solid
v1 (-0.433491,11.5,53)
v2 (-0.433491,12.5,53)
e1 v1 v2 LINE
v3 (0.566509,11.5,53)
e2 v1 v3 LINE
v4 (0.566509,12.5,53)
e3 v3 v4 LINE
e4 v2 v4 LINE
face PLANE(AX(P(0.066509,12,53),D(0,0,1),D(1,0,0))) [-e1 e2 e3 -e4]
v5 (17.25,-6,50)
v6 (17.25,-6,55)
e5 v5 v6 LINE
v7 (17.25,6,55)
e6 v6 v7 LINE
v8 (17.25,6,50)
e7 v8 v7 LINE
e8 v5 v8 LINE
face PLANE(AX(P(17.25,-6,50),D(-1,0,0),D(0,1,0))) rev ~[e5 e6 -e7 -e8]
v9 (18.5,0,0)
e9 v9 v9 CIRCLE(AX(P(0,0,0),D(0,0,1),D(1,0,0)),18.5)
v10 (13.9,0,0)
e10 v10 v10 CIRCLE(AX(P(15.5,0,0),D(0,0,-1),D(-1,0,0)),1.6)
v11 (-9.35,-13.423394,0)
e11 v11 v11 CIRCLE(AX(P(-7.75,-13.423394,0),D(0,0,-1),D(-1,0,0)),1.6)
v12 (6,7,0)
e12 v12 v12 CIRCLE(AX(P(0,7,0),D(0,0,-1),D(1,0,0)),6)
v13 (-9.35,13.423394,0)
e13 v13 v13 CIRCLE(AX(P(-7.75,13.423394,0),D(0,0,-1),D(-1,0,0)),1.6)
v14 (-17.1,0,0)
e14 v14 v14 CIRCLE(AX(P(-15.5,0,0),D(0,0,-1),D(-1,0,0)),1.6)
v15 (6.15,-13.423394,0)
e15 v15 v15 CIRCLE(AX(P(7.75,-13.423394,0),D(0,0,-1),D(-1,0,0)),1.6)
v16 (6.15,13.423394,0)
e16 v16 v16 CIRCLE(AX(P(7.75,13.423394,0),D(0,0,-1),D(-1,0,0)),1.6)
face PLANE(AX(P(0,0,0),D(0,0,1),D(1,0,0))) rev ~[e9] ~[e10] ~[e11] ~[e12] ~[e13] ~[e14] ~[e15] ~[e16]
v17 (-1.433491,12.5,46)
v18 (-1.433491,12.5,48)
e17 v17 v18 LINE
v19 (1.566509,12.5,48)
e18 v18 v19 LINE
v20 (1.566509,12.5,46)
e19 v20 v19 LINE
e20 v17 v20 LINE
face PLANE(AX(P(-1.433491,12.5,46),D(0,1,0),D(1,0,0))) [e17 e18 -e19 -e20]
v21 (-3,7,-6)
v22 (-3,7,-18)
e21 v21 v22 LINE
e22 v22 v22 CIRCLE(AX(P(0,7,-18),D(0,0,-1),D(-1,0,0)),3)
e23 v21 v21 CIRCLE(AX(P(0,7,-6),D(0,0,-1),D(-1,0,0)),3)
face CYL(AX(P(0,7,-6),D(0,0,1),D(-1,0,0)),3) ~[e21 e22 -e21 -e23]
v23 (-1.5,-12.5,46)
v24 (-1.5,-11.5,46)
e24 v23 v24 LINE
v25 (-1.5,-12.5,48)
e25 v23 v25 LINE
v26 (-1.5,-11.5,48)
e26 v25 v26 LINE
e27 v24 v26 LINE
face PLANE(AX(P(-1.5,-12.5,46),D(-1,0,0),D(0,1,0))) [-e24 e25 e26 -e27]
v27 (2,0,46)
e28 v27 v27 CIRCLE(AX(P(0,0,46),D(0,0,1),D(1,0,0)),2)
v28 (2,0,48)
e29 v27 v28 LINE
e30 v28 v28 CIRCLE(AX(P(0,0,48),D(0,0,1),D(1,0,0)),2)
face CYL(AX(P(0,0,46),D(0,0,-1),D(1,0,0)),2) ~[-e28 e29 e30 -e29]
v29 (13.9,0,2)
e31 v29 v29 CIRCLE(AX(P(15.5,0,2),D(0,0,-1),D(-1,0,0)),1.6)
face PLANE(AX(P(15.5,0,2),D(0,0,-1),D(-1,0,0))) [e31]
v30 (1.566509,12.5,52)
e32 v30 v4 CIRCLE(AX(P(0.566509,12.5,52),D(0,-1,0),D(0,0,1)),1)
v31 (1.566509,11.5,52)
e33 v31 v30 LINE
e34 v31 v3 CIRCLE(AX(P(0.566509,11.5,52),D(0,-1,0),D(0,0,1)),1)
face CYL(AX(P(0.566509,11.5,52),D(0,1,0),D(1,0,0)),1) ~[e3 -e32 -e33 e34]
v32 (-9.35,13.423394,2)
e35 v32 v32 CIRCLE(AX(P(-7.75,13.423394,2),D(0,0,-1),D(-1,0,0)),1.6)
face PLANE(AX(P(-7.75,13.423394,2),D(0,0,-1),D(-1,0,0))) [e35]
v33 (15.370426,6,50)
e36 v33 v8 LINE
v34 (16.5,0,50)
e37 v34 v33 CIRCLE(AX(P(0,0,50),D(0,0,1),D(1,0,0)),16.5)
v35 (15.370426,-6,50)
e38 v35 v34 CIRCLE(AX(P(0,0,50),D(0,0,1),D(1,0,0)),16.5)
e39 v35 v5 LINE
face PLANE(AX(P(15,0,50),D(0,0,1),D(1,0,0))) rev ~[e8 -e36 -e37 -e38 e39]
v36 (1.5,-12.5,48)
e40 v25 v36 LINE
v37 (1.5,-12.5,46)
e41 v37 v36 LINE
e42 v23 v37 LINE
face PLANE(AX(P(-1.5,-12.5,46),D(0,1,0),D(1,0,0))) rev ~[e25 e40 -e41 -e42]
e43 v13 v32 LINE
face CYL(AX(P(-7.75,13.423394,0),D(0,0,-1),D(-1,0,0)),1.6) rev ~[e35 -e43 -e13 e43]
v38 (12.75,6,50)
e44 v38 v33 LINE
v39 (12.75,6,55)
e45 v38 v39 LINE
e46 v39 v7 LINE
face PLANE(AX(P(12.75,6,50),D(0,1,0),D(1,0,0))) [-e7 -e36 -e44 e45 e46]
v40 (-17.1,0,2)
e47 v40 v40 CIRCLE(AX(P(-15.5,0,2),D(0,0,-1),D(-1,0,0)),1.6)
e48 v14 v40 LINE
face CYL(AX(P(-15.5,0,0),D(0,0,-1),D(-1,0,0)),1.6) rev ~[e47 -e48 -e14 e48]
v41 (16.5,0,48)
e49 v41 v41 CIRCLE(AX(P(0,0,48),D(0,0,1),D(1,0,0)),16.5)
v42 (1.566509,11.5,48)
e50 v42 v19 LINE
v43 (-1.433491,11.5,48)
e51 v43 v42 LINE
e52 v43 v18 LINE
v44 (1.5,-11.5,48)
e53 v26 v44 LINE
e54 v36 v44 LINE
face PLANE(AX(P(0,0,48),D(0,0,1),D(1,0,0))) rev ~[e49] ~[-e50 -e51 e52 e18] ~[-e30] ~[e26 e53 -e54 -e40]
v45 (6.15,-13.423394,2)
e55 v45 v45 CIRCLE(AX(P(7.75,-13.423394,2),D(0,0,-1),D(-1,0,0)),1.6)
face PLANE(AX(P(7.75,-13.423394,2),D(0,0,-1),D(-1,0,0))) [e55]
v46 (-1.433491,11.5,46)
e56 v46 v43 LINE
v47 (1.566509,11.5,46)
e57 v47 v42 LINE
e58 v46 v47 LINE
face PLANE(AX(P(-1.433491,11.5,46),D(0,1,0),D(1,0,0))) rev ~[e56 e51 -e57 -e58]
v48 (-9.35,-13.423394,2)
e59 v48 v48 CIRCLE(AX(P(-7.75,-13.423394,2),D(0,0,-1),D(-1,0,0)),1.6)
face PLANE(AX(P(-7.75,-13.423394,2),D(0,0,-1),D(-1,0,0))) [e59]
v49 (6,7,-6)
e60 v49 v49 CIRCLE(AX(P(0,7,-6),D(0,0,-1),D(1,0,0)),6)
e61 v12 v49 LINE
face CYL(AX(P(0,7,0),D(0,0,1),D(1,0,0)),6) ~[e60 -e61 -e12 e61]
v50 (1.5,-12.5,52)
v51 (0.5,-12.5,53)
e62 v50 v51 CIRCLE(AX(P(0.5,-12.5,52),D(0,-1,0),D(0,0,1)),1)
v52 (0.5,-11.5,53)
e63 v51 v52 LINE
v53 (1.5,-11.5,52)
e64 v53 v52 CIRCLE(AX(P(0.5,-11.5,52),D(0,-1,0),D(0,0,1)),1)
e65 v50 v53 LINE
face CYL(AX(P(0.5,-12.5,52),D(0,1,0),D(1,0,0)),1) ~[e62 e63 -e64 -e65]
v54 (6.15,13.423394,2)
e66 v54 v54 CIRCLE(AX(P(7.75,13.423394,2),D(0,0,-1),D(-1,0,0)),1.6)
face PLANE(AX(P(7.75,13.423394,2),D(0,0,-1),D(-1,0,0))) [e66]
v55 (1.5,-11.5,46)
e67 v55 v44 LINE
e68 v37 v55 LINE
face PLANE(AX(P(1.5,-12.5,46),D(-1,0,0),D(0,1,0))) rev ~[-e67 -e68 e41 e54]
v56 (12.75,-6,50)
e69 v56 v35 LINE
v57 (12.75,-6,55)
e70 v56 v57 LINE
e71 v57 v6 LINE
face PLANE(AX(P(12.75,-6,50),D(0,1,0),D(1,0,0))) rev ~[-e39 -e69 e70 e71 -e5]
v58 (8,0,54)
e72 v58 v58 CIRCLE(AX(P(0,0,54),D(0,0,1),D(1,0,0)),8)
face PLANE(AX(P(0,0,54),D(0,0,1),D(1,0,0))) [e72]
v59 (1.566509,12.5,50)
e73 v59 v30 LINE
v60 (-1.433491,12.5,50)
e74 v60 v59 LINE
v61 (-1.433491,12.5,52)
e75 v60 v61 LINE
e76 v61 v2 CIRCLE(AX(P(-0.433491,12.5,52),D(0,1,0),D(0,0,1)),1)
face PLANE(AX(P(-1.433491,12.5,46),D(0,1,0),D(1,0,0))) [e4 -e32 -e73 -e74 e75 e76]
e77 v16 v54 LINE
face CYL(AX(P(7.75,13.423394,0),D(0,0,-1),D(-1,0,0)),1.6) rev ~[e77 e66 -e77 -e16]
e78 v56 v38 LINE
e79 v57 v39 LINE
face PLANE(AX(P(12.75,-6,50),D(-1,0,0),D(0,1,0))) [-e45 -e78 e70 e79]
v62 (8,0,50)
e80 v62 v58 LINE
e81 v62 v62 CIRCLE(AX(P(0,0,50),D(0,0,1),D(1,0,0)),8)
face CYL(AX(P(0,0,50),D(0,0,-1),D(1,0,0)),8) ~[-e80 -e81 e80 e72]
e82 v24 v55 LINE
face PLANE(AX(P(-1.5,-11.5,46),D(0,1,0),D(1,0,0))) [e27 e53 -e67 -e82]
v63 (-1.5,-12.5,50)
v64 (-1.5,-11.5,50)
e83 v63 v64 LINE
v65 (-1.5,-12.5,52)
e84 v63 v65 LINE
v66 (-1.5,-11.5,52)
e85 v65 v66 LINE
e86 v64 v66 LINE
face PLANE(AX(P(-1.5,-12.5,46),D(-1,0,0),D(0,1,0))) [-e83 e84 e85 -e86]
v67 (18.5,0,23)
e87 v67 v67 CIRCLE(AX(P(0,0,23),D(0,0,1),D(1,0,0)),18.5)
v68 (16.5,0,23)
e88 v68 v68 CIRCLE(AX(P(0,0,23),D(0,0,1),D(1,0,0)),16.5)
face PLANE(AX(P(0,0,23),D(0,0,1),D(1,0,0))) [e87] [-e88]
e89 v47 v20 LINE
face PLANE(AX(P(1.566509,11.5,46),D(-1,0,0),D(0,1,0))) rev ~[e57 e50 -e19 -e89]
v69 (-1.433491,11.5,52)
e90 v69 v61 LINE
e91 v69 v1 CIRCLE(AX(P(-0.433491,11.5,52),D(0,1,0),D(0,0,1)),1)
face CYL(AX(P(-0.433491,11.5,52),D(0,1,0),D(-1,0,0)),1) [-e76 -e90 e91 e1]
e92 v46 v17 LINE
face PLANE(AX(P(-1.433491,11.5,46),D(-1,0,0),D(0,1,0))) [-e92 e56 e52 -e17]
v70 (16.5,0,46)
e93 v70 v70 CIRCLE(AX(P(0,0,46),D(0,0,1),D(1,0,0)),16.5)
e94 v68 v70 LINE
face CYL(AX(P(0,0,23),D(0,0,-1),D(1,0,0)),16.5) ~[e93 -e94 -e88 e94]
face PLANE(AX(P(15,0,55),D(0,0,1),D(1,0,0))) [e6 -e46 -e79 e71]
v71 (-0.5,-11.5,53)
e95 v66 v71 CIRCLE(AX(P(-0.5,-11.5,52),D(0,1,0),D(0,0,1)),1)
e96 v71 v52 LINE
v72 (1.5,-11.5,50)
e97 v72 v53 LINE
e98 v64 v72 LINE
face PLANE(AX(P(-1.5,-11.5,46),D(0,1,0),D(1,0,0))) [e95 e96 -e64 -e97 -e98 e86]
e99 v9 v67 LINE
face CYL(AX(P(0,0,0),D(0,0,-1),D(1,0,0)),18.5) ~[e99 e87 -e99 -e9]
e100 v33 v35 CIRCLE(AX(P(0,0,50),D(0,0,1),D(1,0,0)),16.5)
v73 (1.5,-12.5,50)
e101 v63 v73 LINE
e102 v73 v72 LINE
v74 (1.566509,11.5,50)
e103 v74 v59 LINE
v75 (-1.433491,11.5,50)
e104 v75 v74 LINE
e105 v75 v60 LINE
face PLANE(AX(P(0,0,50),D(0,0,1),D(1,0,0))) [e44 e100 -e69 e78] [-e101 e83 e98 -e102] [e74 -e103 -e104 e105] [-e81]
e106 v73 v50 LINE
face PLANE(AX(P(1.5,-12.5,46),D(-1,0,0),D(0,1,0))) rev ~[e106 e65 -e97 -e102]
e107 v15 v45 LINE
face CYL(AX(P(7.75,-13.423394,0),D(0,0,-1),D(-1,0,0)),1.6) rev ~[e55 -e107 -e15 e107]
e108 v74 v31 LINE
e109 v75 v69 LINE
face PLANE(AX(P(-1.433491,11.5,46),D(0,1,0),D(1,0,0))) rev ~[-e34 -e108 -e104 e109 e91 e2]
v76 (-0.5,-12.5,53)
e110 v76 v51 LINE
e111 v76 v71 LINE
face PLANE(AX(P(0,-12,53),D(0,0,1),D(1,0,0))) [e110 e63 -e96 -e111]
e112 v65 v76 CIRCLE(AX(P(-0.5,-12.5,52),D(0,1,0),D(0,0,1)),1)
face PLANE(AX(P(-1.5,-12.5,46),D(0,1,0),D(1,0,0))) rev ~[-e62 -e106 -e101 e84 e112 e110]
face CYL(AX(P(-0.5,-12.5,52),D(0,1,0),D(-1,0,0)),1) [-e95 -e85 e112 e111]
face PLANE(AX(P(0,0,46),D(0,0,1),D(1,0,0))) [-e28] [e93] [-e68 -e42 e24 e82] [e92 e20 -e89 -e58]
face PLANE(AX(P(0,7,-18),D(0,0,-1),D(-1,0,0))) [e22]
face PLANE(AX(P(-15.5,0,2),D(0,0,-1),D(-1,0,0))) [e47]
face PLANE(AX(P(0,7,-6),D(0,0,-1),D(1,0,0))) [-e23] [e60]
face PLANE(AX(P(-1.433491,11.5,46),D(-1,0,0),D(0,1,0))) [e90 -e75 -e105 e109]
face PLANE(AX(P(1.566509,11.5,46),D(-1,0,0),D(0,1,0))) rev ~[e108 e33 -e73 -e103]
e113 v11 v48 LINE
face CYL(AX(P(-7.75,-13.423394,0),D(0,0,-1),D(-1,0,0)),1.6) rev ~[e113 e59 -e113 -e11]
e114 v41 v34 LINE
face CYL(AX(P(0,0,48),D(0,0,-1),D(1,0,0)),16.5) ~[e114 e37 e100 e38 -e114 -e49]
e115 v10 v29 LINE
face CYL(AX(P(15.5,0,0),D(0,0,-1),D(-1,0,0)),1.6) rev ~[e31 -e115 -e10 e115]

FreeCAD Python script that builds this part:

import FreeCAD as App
import Part
import Sketcher

V = App.Vector


def edges_at(feature, points):
    """Names of the edges that pass closest to the given points."""
    edges = feature.Shape.Edges
    near = lambda p: min(range(len(edges)), key=lambda i: edges[i].distToShape(Part.Vertex(*p))[0])
    return sorted({f"Edge{near(p) + 1}" for p in points})


def add_polygon(sketch, points):
    """Adds a closed chain of lines whose ends are joined by coincident constraints."""
    first, n = sketch.GeometryCount, len(points)
    for a, b in zip(points, points[1:] + points[:1]):
        sketch.addGeometry(Part.LineSegment(App.Vector(*a, 0), App.Vector(*b, 0)), False)
    for i in range(n):
        sketch.addConstraint(Sketcher.Constraint("Coincident", first + i, 2, first + (i + 1) % n, 1))

doc = App.newDocument("Part")
body = doc.addObject("PartDesign::Body", "Body")

# Sketch on XY plane
sketch1 = body.newObject("Sketcher::SketchObject", "Sketch")
sketch1.AttachmentSupport = (doc.getObject("XY_Plane"), [""])
sketch1.MapMode = "FlatFace"
sketch1.addGeometry(Part.Circle(V(0, 0, 0), V(0, 0, 1), 18), False)
sketch1.addConstraint(Sketcher.Constraint("Coincident", 0, 3, -1, 1))
sketch1.addConstraint(Sketcher.Constraint("Diameter", 0, 37.0))
pad1 = body.newObject("PartDesign::Pad", "Pad")
pad1.Profile = sketch1
pad1.Length = 23

# Sketch on XY plane
sketch2 = body.newObject("Sketcher::SketchObject", "Sketch001")
sketch2.AttachmentSupport = (doc.getObject("XY_Plane"), [""])
sketch2.MapMode = "FlatFace"
sketch2.AttachmentOffset = App.Placement(V(0, 0, 23), App.Rotation())
sketch2.addGeometry(Part.Circle(V(0, 0, 0), V(0, 0, 1), 16), False)
sketch2.addConstraint(Sketcher.Constraint("Coincident", 0, 3, -1, 1))
sketch2.addConstraint(Sketcher.Constraint("Diameter", 0, 33.0))
pad2 = body.newObject("PartDesign::Pad", "Pad001")
pad2.Profile = sketch2
pad2.Length = 23

# Sketch on XY plane
sketch3 = body.newObject("Sketcher::SketchObject", "Sketch002")
sketch3.AttachmentSupport = (doc.getObject("XY_Plane"), [""])
sketch3.MapMode = "FlatFace"
sketch3.addGeometry(Part.Circle(V(0, 7, 0), V(0, 0, 1), 6), False)
sketch3.addConstraint(Sketcher.Constraint("PointOnObject", 0, 3, -2))
sketch3.addConstraint(Sketcher.Constraint("Diameter", 0, 12.0))
sketch3.addConstraint(Sketcher.Constraint("DistanceY", -1, 1, 0, 3, 7.0))
pad3 = body.newObject("PartDesign::Pad", "Pad002")
pad3.Profile = sketch3
pad3.Length = 6
pad3.Reversed = True

# Sketch on XY plane
sketch4 = body.newObject("Sketcher::SketchObject", "Sketch003")
sketch4.AttachmentSupport = (doc.getObject("XY_Plane"), [""])
sketch4.MapMode = "FlatFace"
sketch4.AttachmentOffset = App.Placement(V(0, 0, -6), App.Rotation())
sketch4.addGeometry(Part.Circle(V(0, 7, 0), V(0, 0, 1), 3), False)
sketch4.addConstraint(Sketcher.Constraint("PointOnObject", 0, 3, -2))
sketch4.addConstraint(Sketcher.Constraint("Diameter", 0, 6.0))
sketch4.addConstraint(Sketcher.Constraint("DistanceY", -1, 1, 0, 3, 7.0))
pad4 = body.newObject("PartDesign::Pad", "Pad003")
pad4.Profile = sketch4
pad4.Length = 12
pad4.Reversed = True

# Sketch on XY plane
sketch5 = body.newObject("Sketcher::SketchObject", "Sketch004")
sketch5.AttachmentSupport = (doc.getObject("XY_Plane"), [""])
sketch5.MapMode = "FlatFace"
sketch5.AttachmentOffset = App.Placement(V(0, 0, 46), App.Rotation())
sketch5.addGeometry(Part.Circle(V(0, 0, 0), V(0, 0, 1), 2), False)
sketch5.addConstraint(Sketcher.Constraint("Coincident", 0, 3, -1, 1))
sketch5.addConstraint(Sketcher.Constraint("Diameter", 0, 4.0))
pad5 = body.newObject("PartDesign::Pad", "Pad004")
pad5.Profile = sketch5
pad5.Length = 2

# Sketch on XY plane
sketch6 = body.newObject("Sketcher::SketchObject", "Sketch005")
sketch6.AttachmentSupport = (doc.getObject("XY_Plane"), [""])
sketch6.MapMode = "FlatFace"
sketch6.AttachmentOffset = App.Placement(V(0, 0, 46), App.Rotation())
add_polygon(sketch6, [(-1.5, -11.5), (-1.5, -12.5), (1.5, -12.5), (1.5, -11.5)])  # lines 0-3
add_polygon(sketch6, [(-1.4, 12.5), (-1.4, 11.5), (1.6, 11.5), (1.6, 12.5)])  # lines 4-7
sketch6.addConstraint(Sketcher.Constraint("Vertical", 0))
sketch6.addConstraint(Sketcher.Constraint("Horizontal", 1))
sketch6.addConstraint(Sketcher.Constraint("Vertical", 2))
sketch6.addConstraint(Sketcher.Constraint("Horizontal", 3))
sketch6.addConstraint(Sketcher.Constraint("Vertical", 4))
sketch6.addConstraint(Sketcher.Constraint("Horizontal", 5))
sketch6.addConstraint(Sketcher.Constraint("Vertical", 6))
sketch6.addConstraint(Sketcher.Constraint("Horizontal", 7))
sketch6.addConstraint(Sketcher.Constraint("Equal", 3, 5))
sketch6.addConstraint(Sketcher.Constraint("Equal", 2, 4))
sketch6.addConstraint(Sketcher.Constraint("DistanceX", 1, 1, 1, 2, 3.0))
sketch6.addConstraint(Sketcher.Constraint("DistanceY", 0, 2, 0, 1, 1.0))
sketch6.addConstraint(Sketcher.Constraint("DistanceY", 3, 2, 4, 2, 23.0))
sketch6.addConstraint(Sketcher.Constraint("DistanceX", 0, 2, -1, 1, 1.5))
sketch6.addConstraint(Sketcher.Constraint("DistanceY", 0, 2, -1, 1, 12.5))
sketch6.addConstraint(Sketcher.Constraint("DistanceX", 4, 2, -1, 1, 1.433491))
pad6 = body.newObject("PartDesign::Pad", "Pad005")
pad6.Profile = sketch6
pad6.Length = 7

# Sketch on XY plane
sketch7 = body.newObject("Sketcher::SketchObject", "Sketch006")
sketch7.AttachmentSupport = (doc.getObject("XY_Plane"), [""])
sketch7.MapMode = "FlatFace"
sketch7.AttachmentOffset = App.Placement(V(0, 0, 48), App.Rotation())
sketch7.addGeometry(Part.Circle(V(0, 0, 0), V(0, 0, 1), 16), False)
sketch7.addConstraint(Sketcher.Constraint("Coincident", 0, 3, -1, 1))
sketch7.addConstraint(Sketcher.Constraint("Diameter", 0, 33.0))
pad7 = body.newObject("PartDesign::Pad", "Pad006")
pad7.Profile = sketch7
pad7.Length = 2

# Sketch on XY plane
sketch8 = body.newObject("Sketcher::SketchObject", "Sketch007")
sketch8.AttachmentSupport = (doc.getObject("XY_Plane"), [""])
sketch8.MapMode = "FlatFace"
sketch8.AttachmentOffset = App.Placement(V(0, 0, 50), App.Rotation())
add_polygon(sketch8, [(12.8, 6), (12.8, -6), (17.2, -6), (17.2, 6)])  # lines 0-3
sketch8.addConstraint(Sketcher.Constraint("Vertical", 0))
sketch8.addConstraint(Sketcher.Constraint("Horizontal", 1))
sketch8.addConstraint(Sketcher.Constraint("Vertical", 2))
sketch8.addConstraint(Sketcher.Constraint("Horizontal", 3))
sketch8.addConstraint(Sketcher.Constraint("DistanceY", 0, 2, 0, 1, 12.0))
sketch8.addConstraint(Sketcher.Constraint("DistanceX", 1, 1, 1, 2, 4.5))
sketch8.addConstraint(Sketcher.Constraint("DistanceY", 0, 2, -1, 1, 6.0))
sketch8.addConstraint(Sketcher.Constraint("DistanceX", -1, 1, 0, 2, 12.75))
pad8 = body.newObject("PartDesign::Pad", "Pad007")
pad8.Profile = sketch8
pad8.Length = 5
doc.recompute()

fillet = body.newObject("PartDesign::Fillet", "Fillet")
fillet.Base = (pad8, edges_at(pad8, [
    (1.567, 12, 53),
    (-1.433, 12, 53),
    (1.5, -12, 53),
    (-1.5, -12, 53),
]))
fillet.Radius = 1

# Sketch on XY plane
sketch9 = body.newObject("Sketcher::SketchObject", "Sketch008")
sketch9.AttachmentSupport = (doc.getObject("XY_Plane"), [""])
sketch9.MapMode = "FlatFace"
sketch9.AttachmentOffset = App.Placement(V(0, 0, 50), App.Rotation())
sketch9.addGeometry(Part.Circle(V(0, 0, 0), V(0, 0, 1), 8), False)
sketch9.addConstraint(Sketcher.Constraint("Coincident", 0, 3, -1, 1))
sketch9.addConstraint(Sketcher.Constraint("Diameter", 0, 16.0))
pad9 = body.newObject("PartDesign::Pad", "Pad008")
pad9.Profile = sketch9
pad9.Length = 4

# Sketch on XY plane
sketch10 = body.newObject("Sketcher::SketchObject", "Sketch009")
sketch10.AttachmentSupport = (doc.getObject("XY_Plane"), [""])
sketch10.MapMode = "FlatFace"
sketch10.addGeometry(Part.Circle(V(-15.5, 0, 0), V(0, 0, 1), 1.6), False)
sketch10.addGeometry(Part.Circle(V(-7.8, -13.4, 0), V(0, 0, 1), 1.6), False)
sketch10.addGeometry(Part.Circle(V(7.8, -13.4, 0), V(0, 0, 1), 1.6), False)
sketch10.addGeometry(Part.Circle(V(15.5, 0, 0), V(0, 0, 1), 1.6), False)
sketch10.addGeometry(Part.Circle(V(7.8, 13.4, 0), V(0, 0, 1), 1.6), False)
sketch10.addGeometry(Part.Circle(V(-7.8, 13.4, 0), V(0, 0, 1), 1.6), False)
sketch10.addConstraint(Sketcher.Constraint("Equal", 0, 1))
sketch10.addConstraint(Sketcher.Constraint("Equal", 1, 2))
sketch10.addConstraint(Sketcher.Constraint("Equal", 2, 3))
sketch10.addConstraint(Sketcher.Constraint("Equal", 3, 4))
sketch10.addConstraint(Sketcher.Constraint("Equal", 4, 5))
sketch10.addConstraint(Sketcher.Constraint("Symmetric", 0, 3, 3, 3, -1, 1))
sketch10.addConstraint(Sketcher.Constraint("Symmetric", 1, 3, 4, 3, -1, 1))
sketch10.addConstraint(Sketcher.Constraint("Symmetric", 2, 3, 5, 3, -1, 1))
sketch10.addConstraint(Sketcher.Constraint("Symmetric", 1, 3, 2, 3, -2))
sketch10.addConstraint(Sketcher.Constraint("PointOnObject", 0, 3, -1))
sketch10.addConstraint(Sketcher.Constraint("Diameter", 0, 3.2))
sketch10.addConstraint(Sketcher.Constraint("DistanceX", 0, 3, 3, 3, 31.0))
sketch10.addConstraint(Sketcher.Constraint("DistanceX", 1, 3, 2, 3, 15.5))
sketch10.addConstraint(Sketcher.Constraint("DistanceY", 1, 3, -1, 1, 13.423394))
pocket1 = body.newObject("PartDesign::Pocket", "Pocket")
pocket1.Profile = sketch10
pocket1.Length = 2
pocket1.Reversed = True

doc.recompute()
